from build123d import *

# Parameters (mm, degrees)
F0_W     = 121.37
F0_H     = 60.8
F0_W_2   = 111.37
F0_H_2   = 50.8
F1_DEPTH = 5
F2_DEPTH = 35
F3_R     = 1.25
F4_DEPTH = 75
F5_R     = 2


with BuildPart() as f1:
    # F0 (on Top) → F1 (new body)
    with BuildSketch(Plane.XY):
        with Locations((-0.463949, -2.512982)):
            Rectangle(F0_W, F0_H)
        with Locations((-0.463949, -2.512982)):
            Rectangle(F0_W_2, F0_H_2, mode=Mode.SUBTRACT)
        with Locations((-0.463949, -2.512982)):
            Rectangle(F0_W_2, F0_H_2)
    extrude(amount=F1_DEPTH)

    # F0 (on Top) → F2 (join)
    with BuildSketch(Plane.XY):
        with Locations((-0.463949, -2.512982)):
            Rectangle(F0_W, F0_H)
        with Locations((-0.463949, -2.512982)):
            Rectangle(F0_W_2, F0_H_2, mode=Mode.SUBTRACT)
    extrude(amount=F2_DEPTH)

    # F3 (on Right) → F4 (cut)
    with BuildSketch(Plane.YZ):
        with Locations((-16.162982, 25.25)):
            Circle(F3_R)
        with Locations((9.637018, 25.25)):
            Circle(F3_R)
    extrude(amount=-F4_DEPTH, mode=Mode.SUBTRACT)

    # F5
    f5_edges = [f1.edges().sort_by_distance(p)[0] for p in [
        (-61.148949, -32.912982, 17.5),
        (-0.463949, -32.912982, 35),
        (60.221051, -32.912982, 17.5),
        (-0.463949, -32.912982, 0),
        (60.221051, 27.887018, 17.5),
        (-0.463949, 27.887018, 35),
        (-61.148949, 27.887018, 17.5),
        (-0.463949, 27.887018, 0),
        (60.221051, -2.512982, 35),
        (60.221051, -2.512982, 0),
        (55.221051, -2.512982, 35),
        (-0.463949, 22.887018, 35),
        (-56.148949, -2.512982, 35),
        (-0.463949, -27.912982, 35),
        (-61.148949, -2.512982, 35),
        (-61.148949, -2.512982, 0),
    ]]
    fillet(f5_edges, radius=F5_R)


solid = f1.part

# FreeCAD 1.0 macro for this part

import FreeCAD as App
import Part
import Sketcher
from FreeCAD import Vector


def edges_at(feature, points):
    """Names of the edges that pass closest to the given points."""
    edges = feature.Shape.Edges
    near = lambda p: min(range(len(edges)), key=lambda i: edges[i].distToShape(Part.Vertex(*p))[0])
    return sorted({f"Edge{near(p) + 1}" for p in points})

doc = App.newDocument("Part")
body = doc.addObject("PartDesign::Body", "Body")

# Sketch on XY plane
sketch1 = doc.addObject("Sketcher::SketchObject", "Sketch")
body.addObject(sketch1)
sketch1.AttachmentSupport = (doc.XY_Plane, [""])
sketch1.MapMode = "FlatFace"
sketch1.addGeometry(Part.LineSegment(Vector(-61, 28, 0), Vector(-61, -33, 0)), False)
sketch1.addGeometry(Part.LineSegment(Vector(-61, -33, 0), Vector(60, -33, 0)), False)
sketch1.addGeometry(Part.LineSegment(Vector(60, -33, 0), Vector(60, 28, 0)), False)
sketch1.addGeometry(Part.LineSegment(Vector(60, 28, 0), Vector(-61, 28, 0)), False)
sketch1.addConstraint(Sketcher.Constraint("Coincident", 0, 2, 1, 1))
sketch1.addConstraint(Sketcher.Constraint("Coincident", 1, 2, 2, 1))
sketch1.addConstraint(Sketcher.Constraint("Coincident", 2, 2, 3, 1))
sketch1.addConstraint(Sketcher.Constraint("Coincident", 3, 2, 0, 1))
sketch1.addConstraint(Sketcher.Constraint("Vertical", 0))
sketch1.addConstraint(Sketcher.Constraint("Horizontal", 1))
sketch1.addConstraint(Sketcher.Constraint("Vertical", 2))
sketch1.addConstraint(Sketcher.Constraint("Horizontal", 3))
sketch1.addConstraint(Sketcher.Constraint("DistanceY", 0, 2, 0, 1, 60.8))
sketch1.addConstraint(Sketcher.Constraint("DistanceX", 1, 1, 1, 2, 121.37))
sketch1.addConstraint(Sketcher.Constraint("DistanceX", 0, 2, -1, 1, 61.148949))
sketch1.addConstraint(Sketcher.Constraint("DistanceY", -1, 1, 2, 2, 27.887018))
pad1 = doc.addObject("PartDesign::Pad", "Pad")
body.addObject(pad1)
pad1.Profile = sketch1
pad1.Length = 5

# Sketch on XY plane
sketch2 = doc.addObject("Sketcher::SketchObject", "Sketch001")
body.addObject(sketch2)
sketch2.AttachmentSupport = (doc.XY_Plane, [""])
sketch2.MapMode = "FlatFace"
sketch2.addGeometry(Part.LineSegment(Vector(-61, 28, 0), Vector(-61, -33, 0)), False)
sketch2.addGeometry(Part.LineSegment(Vector(-61, -33, 0), Vector(60, -33, 0)), False)
sketch2.addGeometry(Part.LineSegment(Vector(60, -33, 0), Vector(60, 28, 0)), False)
sketch2.addGeometry(Part.LineSegment(Vector(60, 28, 0), Vector(-61, 28, 0)), False)
sketch2.addGeometry(Part.LineSegment(Vector(55, -28, 0), Vector(-56, -28, 0)), False)
sketch2.addGeometry(Part.LineSegment(Vector(-56, -28, 0), Vector(-56, 23, 0)), False)
sketch2.addGeometry(Part.LineSegment(Vector(-56, 23, 0), Vector(55, 23, 0)), False)
sketch2.addGeometry(Part.LineSegment(Vector(55, 23, 0), Vector(55, -28, 0)), False)
sketch2.addConstraint(Sketcher.Constraint("Coincident", 0, 2, 1, 1))
sketch2.addConstraint(Sketcher.Constraint("Coincident", 1, 2, 2, 1))
sketch2.addConstraint(Sketcher.Constraint("Coincident", 2, 2, 3, 1))
sketch2.addConstraint(Sketcher.Constraint("Coincident", 3, 2, 0, 1))
sketch2.addConstraint(Sketcher.Constraint("Coincident", 4, 2, 5, 1))
sketch2.addConstraint(Sketcher.Constraint("Coincident", 5, 2, 6, 1))
sketch2.addConstraint(Sketcher.Constraint("Coincident", 6, 2, 7, 1))
sketch2.addConstraint(Sketcher.Constraint("Coincident", 7, 2, 4, 1))
sketch2.addConstraint(Sketcher.Constraint("Vertical", 0))
sketch2.addConstraint(Sketcher.Constraint("Horizontal", 1))
sketch2.addConstraint(Sketcher.Constraint("Vertical", 2))
sketch2.addConstraint(Sketcher.Constraint("Horizontal", 3))
sketch2.addConstraint(Sketcher.Constraint("Horizontal", 4))
sketch2.addConstraint(Sketcher.Constraint("Vertical", 5))
sketch2.addConstraint(Sketcher.Constraint("Horizontal", 6))
sketch2.addConstraint(Sketcher.Constraint("Vertical", 7))
sketch2.addConstraint(Sketcher.Constraint("DistanceY", 0, 2, 0, 1, 60.8))
sketch2.addConstraint(Sketcher.Constraint("DistanceY", 5, 1, 5, 2, 50.8))
sketch2.addConstraint(Sketcher.Constraint("DistanceX", 0, 2, 4, 2, 5.0))
sketch2.addConstraint(Sketcher.Constraint("DistanceY", 0, 2, 4, 2, 5.0))
sketch2.addConstraint(Sketcher.Constraint("DistanceX", 6, 2, 2, 2, 5.0))
sketch2.addConstraint(Sketcher.Constraint("DistanceX", 1, 1, 1, 2, 121.37))
sketch2.addConstraint(Sketcher.Constraint("DistanceX", 0, 2, -1, 1, 61.148949))
sketch2.addConstraint(Sketcher.Constraint("DistanceY", -1, 1, 2, 2, 27.887018))
pad2 = doc.addObject("PartDesign::Pad", "Pad001")
body.addObject(pad2)
pad2.Profile = sketch2
pad2.Length = 35

# Sketch on YZ plane
sketch3 = doc.addObject("Sketcher::SketchObject", "Sketch002")
body.addObject(sketch3)
sketch3.AttachmentSupport = (doc.YZ_Plane, [""])
sketch3.MapMode = "FlatFace"
sketch3.addGeometry(Part.Circle(Vector(-16.2, 25.2, 0), Vector(0, 0, 1), 1.2), False)
sketch3.addGeometry(Part.Circle(Vector(9.6, 25.2, 0), Vector(0, 0, 1), 1.2), False)
sketch3.addConstraint(Sketcher.Constraint("Equal", 0, 1))
sketch3.addConstraint(Sketcher.Constraint("Horizontal", 0, 3, 1, 3))
sketch3.addConstraint(Sketcher.Constraint("Diameter", 0, 2.5))
sketch3.addConstraint(Sketcher.Constraint("DistanceX", 0, 3, 1, 3, 25.8))
sketch3.addConstraint(Sketcher.Constraint("DistanceY", -1, 1, 0, 3, 25.25))
sketch3.addConstraint(Sketcher.Constraint("DistanceX", 0, 3, -1, 1, 16.162982))
pocket1 = doc.addObject("PartDesign::Pocket", "Pocket")
body.addObject(pocket1)
pocket1.Profile = sketch3
pocket1.Length = 75
doc.recompute()

fillet = doc.addObject("PartDesign::Fillet", "Fillet")
body.addObject(fillet)
fillet.Base = (pocket1, edges_at(pocket1, [
    (-61.149, -32.913, 17.5),
    (-0.464, -32.913, 35),
    (60.221, -32.913, 17.5),
    (-0.464, -32.913, 0),
    (60.221, 27.887, 17.5),
    (-0.464, 27.887, 35),
    (-61.149, 27.887, 17.5),
    (-0.464, 27.887, 0),
    (60.221, -2.513, 35),
    (60.221, -2.513, 0),
    (55.221, -2.513, 35),
    (-0.464, 22.887, 35),
    (-56.149, -2.513, 35),
    (-0.464, -27.913, 35),
    (-61.149, -2.513, 35),
    (-61.149, -2.513, 0),
]))
fillet.Radius = 2

doc.recompute()
